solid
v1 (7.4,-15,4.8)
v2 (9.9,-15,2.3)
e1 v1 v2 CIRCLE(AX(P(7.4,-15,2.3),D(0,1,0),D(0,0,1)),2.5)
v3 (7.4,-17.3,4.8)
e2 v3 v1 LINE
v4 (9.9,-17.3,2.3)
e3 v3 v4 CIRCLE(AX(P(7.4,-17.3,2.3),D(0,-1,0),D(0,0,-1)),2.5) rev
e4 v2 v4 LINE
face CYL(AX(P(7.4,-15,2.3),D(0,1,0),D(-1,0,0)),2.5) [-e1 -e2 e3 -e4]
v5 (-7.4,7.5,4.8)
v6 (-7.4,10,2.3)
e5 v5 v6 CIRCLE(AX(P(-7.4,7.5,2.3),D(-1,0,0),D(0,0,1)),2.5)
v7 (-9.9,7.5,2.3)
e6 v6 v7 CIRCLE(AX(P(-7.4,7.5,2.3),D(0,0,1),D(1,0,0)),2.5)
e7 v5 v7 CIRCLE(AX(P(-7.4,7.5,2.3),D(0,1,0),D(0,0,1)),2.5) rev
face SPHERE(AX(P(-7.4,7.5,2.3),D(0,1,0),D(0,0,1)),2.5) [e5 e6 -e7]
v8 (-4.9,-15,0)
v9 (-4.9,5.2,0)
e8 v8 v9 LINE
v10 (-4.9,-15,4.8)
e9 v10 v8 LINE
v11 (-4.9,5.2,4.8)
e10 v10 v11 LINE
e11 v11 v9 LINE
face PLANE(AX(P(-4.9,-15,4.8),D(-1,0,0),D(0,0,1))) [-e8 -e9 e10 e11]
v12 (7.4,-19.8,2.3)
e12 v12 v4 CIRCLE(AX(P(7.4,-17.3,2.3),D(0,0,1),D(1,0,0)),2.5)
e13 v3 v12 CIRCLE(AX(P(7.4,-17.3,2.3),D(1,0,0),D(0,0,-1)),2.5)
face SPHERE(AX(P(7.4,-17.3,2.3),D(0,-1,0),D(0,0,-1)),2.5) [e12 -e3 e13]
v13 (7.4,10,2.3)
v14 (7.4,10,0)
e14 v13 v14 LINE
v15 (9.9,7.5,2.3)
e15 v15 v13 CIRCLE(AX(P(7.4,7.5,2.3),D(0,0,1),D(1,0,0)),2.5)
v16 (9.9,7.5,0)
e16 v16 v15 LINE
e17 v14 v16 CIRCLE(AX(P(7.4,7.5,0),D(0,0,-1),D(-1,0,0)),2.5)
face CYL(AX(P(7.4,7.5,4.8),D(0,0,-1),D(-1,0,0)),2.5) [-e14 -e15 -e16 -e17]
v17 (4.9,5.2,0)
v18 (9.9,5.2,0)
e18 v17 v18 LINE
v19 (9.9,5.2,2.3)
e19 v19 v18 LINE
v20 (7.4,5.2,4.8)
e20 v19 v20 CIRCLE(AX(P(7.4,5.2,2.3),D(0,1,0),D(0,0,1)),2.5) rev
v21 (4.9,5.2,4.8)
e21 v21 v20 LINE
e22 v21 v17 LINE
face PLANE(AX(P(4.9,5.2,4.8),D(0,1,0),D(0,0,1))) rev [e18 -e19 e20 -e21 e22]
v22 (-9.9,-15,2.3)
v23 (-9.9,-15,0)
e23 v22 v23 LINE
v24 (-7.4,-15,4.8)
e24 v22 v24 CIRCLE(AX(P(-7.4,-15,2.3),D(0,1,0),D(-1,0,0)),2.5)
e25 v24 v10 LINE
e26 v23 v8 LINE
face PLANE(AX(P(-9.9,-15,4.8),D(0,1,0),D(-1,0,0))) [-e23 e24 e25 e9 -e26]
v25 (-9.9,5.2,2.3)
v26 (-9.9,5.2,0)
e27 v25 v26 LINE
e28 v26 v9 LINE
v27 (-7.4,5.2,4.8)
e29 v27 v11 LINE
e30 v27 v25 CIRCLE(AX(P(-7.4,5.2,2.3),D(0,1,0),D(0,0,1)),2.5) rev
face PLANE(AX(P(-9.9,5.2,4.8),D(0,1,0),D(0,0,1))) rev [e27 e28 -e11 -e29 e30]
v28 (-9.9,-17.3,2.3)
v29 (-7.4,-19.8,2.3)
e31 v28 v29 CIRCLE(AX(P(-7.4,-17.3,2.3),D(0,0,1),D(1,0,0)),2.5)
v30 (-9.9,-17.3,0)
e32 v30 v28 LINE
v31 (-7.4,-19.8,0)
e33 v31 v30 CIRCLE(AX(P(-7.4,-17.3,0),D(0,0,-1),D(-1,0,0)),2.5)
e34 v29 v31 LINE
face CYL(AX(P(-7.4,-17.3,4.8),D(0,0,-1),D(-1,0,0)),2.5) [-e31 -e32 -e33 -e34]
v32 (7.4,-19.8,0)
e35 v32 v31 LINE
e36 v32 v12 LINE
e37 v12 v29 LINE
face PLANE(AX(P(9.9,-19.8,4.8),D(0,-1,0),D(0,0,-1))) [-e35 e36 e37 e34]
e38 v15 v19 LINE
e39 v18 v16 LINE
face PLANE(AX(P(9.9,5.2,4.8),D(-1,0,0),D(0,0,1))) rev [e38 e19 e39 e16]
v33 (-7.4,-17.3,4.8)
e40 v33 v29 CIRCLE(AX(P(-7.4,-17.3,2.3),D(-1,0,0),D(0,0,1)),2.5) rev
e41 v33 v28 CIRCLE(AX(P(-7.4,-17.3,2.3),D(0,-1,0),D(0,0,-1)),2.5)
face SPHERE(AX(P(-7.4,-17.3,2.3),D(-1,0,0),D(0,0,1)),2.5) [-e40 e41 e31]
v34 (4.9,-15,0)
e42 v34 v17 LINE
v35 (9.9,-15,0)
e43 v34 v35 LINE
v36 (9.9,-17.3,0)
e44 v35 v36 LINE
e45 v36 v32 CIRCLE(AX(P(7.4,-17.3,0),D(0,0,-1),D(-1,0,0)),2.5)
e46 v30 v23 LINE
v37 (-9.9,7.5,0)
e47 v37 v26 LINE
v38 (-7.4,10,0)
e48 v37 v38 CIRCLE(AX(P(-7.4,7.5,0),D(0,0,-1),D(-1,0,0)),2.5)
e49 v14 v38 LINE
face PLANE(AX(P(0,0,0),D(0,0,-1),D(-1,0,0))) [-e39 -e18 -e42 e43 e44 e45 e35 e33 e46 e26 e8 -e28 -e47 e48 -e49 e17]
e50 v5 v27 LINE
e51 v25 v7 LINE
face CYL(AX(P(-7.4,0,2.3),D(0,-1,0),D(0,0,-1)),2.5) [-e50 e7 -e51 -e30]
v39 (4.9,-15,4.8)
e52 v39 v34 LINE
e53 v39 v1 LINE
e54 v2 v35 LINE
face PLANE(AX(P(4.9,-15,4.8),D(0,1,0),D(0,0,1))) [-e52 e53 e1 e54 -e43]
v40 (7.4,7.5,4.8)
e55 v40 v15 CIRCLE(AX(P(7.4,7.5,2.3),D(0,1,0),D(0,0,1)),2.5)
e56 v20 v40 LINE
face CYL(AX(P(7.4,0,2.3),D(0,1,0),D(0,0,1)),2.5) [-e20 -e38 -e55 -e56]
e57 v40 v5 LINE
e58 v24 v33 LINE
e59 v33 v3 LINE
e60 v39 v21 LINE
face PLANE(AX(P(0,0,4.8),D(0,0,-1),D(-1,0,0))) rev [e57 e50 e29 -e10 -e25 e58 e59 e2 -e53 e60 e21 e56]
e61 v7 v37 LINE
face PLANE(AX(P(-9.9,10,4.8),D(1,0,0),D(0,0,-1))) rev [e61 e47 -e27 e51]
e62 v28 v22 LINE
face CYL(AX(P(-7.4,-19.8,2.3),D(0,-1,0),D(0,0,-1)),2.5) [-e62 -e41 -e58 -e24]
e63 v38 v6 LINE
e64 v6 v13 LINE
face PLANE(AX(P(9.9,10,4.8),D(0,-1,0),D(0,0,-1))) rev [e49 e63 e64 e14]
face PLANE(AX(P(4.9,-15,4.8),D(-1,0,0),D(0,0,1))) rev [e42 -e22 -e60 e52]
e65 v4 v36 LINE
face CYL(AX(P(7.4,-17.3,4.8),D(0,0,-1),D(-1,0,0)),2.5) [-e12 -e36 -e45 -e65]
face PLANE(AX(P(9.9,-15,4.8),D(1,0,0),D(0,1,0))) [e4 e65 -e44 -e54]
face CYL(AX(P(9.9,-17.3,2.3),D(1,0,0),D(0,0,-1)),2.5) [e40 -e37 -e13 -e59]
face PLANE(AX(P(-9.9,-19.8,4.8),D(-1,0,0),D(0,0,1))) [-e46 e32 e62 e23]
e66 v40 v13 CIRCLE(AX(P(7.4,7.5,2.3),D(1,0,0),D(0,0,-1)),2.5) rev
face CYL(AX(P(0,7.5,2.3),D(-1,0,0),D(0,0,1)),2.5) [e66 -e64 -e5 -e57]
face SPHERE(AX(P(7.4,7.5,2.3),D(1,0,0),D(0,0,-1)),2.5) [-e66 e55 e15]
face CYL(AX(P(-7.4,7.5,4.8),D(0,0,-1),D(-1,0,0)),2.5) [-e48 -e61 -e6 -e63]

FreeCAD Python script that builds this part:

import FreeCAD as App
import Part
import Sketcher

V = App.Vector


def edges_at(feature, points):
    """Names of the edges that pass closest to the given points."""
    edges = feature.Shape.Edges
    near = lambda p: min(range(len(edges)), key=lambda i: edges[i].distToShape(Part.Vertex(*p))[0])
    return sorted({f"Edge{near(p) + 1}" for p in points})


def add_polygon(sketch, points):
    """Adds a closed chain of lines whose ends are joined by coincident constraints."""
    first, n = sketch.GeometryCount, len(points)
    for a, b in zip(points, points[1:] + points[:1]):
        sketch.addGeometry(Part.LineSegment(App.Vector(*a, 0), App.Vector(*b, 0)), False)
    for i in range(n):
        sketch.addConstraint(Sketcher.Constraint("Coincident", first + i, 2, first + (i + 1) % n, 1))

doc = App.newDocument("Part")
body = doc.addObject("PartDesign::Body", "Body")

# Sketch on XY plane
sketch1 = body.newObject("Sketcher::SketchObject", "Sketch")
sketch1.AttachmentSupport = (doc.getObject("XY_Plane"), [""])
sketch1.MapMode = "FlatFace"
add_polygon(sketch1, [(9.9, -15), (4.9, -15), (4.9, 5.2), (9.9, 5.2), (9.9, 10), (-9.9, 10), (-9.9, 5.2), (-4.9, 5.2), (-4.9, -15), (-9.9, -15), (-9.9, -19.8), (9.9, -19.8)])  # lines 0-11
sketch1.addConstraint([
    Sketcher.Constraint("Horizontal", 0),
    Sketcher.Constraint("Vertical", 1),
    Sketcher.Constraint("Horizontal", 2),
    Sketcher.Constraint("Vertical", 3),
    Sketcher.Constraint("Horizontal", 4),
    Sketcher.Constraint("Vertical", 5),
    Sketcher.Constraint("Horizontal", 6),
    Sketcher.Constraint("Vertical", 7),
    Sketcher.Constraint("Horizontal", 8),
    Sketcher.Constraint("Vertical", 9),
    Sketcher.Constraint("Horizontal", 10),
    Sketcher.Constraint("Vertical", 11),
    Sketcher.Constraint("Symmetric", 2, 2, 5, 2, -2),
    Sketcher.Constraint("Symmetric", 0, 2, 7, 2, -2),
    Sketcher.Constraint("Vertical", 5, 2, 8, 2),
    Sketcher.Constraint("Vertical", 3, 2, 10, 2),
    Sketcher.Constraint("Equal", 5, 9),
    Sketcher.Constraint("DistanceX", 0, 2, 0, 1, 5.0),
    Sketcher.Constraint("DistanceX", 4, 2, 4, 1, 19.8),
    Sketcher.Constraint("DistanceY", 1, 1, 1, 2, 20.2),
    Sketcher.Constraint("DistanceY", 3, 1, 3, 2, 4.8),
    Sketcher.Constraint("DistanceY", 0, 2, -1, 1, 15.0),
])
pad1 = body.newObject("PartDesign::Pad", "Pad")
pad1.Profile = sketch1
pad1.Length = 4.8
doc.recompute()

fillet = body.newObject("PartDesign::Fillet", "Fillet")
fillet.Base = (pad1, edges_at(pad1, [
    (0, -19.8, 4.8),
    (-9.9, -17.4, 4.8),
    (9.9, 10, 2.4),
    (-9.9, 10, 2.4),
    (-9.9, -19.8, 2.4),
    (9.9, -19.8, 2.4),
    (-9.9, 7.6, 4.8),
    (0, 10, 4.8),
    (9.9, 7.6, 4.8),
    (9.9, -17.4, 4.8),
]))
fillet.Radius = 2.5

doc.recompute()
